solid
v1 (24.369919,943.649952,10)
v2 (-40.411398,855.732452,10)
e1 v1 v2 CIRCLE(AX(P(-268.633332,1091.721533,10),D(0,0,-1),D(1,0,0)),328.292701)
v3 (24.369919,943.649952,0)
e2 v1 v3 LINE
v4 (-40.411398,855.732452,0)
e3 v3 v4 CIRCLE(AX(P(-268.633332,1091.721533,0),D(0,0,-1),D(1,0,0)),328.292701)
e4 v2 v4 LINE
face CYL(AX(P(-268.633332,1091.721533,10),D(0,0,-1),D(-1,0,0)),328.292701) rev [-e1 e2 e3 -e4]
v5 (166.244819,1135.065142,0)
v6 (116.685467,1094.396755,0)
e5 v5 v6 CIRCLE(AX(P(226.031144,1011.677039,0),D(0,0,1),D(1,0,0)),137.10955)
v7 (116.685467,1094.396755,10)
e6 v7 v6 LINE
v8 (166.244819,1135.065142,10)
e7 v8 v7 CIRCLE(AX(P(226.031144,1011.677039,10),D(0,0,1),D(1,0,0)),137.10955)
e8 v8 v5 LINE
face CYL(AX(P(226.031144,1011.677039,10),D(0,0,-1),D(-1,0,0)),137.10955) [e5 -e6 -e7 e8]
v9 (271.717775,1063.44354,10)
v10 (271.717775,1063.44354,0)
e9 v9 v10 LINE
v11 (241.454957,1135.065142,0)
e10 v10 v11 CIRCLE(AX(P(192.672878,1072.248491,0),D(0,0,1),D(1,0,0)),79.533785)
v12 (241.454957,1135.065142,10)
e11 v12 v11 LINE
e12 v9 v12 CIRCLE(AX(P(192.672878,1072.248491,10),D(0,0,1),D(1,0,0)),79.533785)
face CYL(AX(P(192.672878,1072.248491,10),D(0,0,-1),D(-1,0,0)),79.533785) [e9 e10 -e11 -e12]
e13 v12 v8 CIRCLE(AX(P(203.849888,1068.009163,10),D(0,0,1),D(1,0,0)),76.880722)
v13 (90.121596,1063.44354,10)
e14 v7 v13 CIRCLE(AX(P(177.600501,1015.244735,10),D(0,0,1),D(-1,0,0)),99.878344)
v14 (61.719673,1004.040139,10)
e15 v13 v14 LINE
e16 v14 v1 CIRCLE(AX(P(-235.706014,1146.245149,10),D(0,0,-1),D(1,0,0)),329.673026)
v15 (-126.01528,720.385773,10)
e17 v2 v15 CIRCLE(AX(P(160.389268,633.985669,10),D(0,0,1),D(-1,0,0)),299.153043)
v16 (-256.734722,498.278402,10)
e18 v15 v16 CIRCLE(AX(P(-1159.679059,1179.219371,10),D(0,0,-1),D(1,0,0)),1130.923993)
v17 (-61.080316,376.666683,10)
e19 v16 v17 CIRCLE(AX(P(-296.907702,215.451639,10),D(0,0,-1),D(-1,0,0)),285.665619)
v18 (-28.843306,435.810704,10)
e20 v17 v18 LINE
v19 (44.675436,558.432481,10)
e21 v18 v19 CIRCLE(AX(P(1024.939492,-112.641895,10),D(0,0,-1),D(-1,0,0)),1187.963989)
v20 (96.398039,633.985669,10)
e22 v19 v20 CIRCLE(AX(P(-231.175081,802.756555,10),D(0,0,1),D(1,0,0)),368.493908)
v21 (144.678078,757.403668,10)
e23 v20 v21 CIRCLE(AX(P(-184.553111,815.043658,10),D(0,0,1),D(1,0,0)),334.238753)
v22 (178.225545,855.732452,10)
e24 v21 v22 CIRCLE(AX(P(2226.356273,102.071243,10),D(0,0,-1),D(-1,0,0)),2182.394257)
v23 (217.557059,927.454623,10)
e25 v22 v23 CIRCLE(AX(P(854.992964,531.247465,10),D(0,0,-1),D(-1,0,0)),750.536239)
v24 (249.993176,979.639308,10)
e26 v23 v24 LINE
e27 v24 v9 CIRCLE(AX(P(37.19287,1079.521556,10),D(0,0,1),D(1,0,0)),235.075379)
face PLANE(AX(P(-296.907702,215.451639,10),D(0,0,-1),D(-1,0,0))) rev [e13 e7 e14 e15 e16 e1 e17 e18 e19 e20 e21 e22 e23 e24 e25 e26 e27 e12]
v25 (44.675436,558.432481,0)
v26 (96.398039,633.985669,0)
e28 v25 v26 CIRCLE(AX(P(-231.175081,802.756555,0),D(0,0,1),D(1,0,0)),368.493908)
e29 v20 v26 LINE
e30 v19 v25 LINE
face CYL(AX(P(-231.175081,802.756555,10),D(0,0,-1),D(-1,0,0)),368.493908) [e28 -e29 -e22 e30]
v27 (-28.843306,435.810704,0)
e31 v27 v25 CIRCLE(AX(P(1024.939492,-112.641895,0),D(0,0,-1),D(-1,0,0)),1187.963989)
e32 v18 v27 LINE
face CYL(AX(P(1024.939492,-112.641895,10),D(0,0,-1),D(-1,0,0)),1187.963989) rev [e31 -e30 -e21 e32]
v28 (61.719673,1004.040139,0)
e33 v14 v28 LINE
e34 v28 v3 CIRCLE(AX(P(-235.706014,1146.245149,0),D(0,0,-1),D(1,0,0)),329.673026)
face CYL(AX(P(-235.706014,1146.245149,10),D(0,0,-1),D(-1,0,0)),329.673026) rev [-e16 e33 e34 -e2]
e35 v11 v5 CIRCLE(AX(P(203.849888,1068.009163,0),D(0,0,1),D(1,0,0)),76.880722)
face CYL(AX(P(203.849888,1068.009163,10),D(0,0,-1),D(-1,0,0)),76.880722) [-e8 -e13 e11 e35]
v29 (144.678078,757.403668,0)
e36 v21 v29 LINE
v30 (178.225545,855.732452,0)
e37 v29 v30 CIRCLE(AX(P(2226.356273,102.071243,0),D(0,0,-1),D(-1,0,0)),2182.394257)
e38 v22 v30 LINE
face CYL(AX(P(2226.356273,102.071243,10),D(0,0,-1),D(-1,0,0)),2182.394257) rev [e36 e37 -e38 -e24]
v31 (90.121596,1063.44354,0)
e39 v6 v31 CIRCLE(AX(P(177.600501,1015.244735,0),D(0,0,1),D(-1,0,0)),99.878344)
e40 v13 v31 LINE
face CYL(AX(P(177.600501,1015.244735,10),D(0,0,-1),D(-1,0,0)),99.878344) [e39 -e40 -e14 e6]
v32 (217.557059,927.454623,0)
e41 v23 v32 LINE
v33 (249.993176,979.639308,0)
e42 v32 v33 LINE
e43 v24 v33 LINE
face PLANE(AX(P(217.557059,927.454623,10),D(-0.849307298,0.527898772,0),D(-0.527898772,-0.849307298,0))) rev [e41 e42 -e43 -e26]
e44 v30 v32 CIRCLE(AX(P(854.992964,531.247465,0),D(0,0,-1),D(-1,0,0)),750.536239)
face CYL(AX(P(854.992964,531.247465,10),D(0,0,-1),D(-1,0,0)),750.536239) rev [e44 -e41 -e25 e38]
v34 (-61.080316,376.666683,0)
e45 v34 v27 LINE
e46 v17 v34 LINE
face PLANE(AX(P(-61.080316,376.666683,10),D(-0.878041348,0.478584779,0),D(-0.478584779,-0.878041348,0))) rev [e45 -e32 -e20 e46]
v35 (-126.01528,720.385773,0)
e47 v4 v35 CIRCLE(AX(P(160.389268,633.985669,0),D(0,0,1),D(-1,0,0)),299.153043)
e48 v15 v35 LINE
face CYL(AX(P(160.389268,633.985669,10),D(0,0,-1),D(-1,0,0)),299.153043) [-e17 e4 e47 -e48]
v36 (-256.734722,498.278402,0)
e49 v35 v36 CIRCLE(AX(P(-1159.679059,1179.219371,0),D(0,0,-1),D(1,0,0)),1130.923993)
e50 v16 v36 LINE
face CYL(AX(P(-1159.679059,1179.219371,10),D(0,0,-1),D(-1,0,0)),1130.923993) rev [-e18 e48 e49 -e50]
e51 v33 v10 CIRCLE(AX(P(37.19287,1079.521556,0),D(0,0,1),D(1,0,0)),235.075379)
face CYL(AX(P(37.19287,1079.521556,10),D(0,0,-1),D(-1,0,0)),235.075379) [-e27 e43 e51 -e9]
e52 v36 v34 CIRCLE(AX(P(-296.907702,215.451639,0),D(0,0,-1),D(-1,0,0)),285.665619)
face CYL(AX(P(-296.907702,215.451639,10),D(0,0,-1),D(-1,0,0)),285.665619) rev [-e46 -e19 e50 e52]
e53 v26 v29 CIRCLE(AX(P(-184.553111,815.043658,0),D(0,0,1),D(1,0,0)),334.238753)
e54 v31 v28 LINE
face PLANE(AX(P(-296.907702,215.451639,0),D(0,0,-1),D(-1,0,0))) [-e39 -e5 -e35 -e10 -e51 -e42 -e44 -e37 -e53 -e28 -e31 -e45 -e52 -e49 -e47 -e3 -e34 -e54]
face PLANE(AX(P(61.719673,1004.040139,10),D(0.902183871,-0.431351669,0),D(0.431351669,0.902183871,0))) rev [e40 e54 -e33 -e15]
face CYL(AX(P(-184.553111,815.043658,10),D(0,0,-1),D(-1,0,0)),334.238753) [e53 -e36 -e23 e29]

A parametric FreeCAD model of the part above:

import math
import FreeCAD as App
import Part
import Sketcher

doc = App.newDocument("Part")
body = doc.addObject("PartDesign::Body", "Body")

# Sketch on XY plane
sketch1 = doc.addObject("Sketcher::SketchObject", "Sketch")
body.addObject(sketch1)
sketch1.AttachmentSupport = (doc.XY_Plane, [""])
sketch1.MapMode = "FlatFace"
sketch1.addGeometry([
    Part.LineSegment(App.Vector(90.121596, 1063.44354, 0), App.Vector(61.719673, 1004.040139, 0)),  # 0
    Part.ArcOfCircle(Part.Circle(App.Vector(-235.706014, 1146.245149, 0), App.Vector(0, 0, 1), 329.673026), math.radians(-37.918048), math.radians(-25.553371)),  # 1
    Part.ArcOfCircle(Part.Circle(App.Vector(-268.633332, 1091.721533, 0), App.Vector(0, 0, 1), 328.292701), math.radians(-45.95858), math.radians(-26.810124)),  # 2
    Part.ArcOfCircle(Part.Circle(App.Vector(160.389267, 633.985669, 0), App.Vector(0, 0, 1), 299.153043), math.radians(132.162111), math.radians(163.212931)),  # 3
    Part.ArcOfCircle(Part.Circle(App.Vector(-1159.679059, 1179.219371, 0), App.Vector(0, 0, 1), 1130.923993), math.radians(-37.021186), math.radians(-23.935983)),  # 4
    Part.ArcOfCircle(Part.Circle(App.Vector(-296.907702, 215.451639, 0), App.Vector(0, 0, 1), 285.665619), math.radians(34.357082), math.radians(81.915733)),  # 5
    Part.LineSegment(App.Vector(-61.080316, 376.666683, 0), App.Vector(-28.843306, 435.810704, 0)),  # 6
    Part.ArcOfCircle(Part.Circle(App.Vector(1024.939492, -112.641895, 0), App.Vector(0, 0, 1), 1187.963989), math.radians(145.605031), math.radians(152.504792)),  # 7
    Part.ArcOfCircle(Part.Circle(App.Vector(-231.175081, 802.756555, 0), App.Vector(0, 0, 1), 368.493908), math.radians(-41.531693), math.radians(-27.258245)),  # 8
    Part.ArcOfCircle(Part.Circle(App.Vector(-184.553111, 815.043658, 0), App.Vector(0, 0, 1), 334.238753), math.radians(-32.799615), math.radians(-9.930388)),  # 9
    Part.ArcOfCircle(Part.Circle(App.Vector(2226.356273, 102.071243, 0), App.Vector(0, 0, 1), 2182.394258), math.radians(159.797639), math.radians(162.525494)),  # 10
    Part.ArcOfCircle(Part.Circle(App.Vector(854.992964, 531.247465, 0), App.Vector(0, 0, 1), 750.536239), math.radians(148.136407), math.radians(154.384002)),  # 11
    Part.LineSegment(App.Vector(217.557059, 927.454623, 0), App.Vector(249.993176, 979.639308, 0)),  # 12
    Part.ArcOfCircle(Part.Circle(App.Vector(37.19287, 1079.521556, 0), App.Vector(0, 0, 1), 235.075379), math.radians(-25.143989), math.radians(-3.921815)),  # 13
    Part.ArcOfCircle(Part.Circle(App.Vector(192.672878, 1072.248491, 0), App.Vector(0, 0, 1), 79.533785), math.radians(-6.356075), math.radians(52.167844)),  # 14
    Part.ArcOfCircle(Part.Circle(App.Vector(203.849888, 1068.009163, 0), App.Vector(0, 0, 1), 76.880722), math.radians(60.716242), math.radians(119.283758)),  # 15
    Part.ArcOfCircle(Part.Circle(App.Vector(226.031144, 1011.677039, 0), App.Vector(0, 0, 1), 137.10955), math.radians(115.851989), math.radians(142.892591)),  # 16
    Part.ArcOfCircle(Part.Circle(App.Vector(177.600501, 1015.244735, 0), App.Vector(0, 0, 1), 99.878344), math.radians(127.581717), math.radians(151.146277)),  # 17
], False)
sketch1.addConstraint([
    Sketcher.Constraint("Tangent", 0, 2, 1, 2),
    Sketcher.Constraint("Coincident", 1, 1, 2, 2),
    Sketcher.Constraint("Coincident", 2, 1, 3, 1),
    Sketcher.Constraint("Coincident", 3, 2, 4, 2),
    Sketcher.Constraint("Coincident", 4, 1, 5, 2),
    Sketcher.Constraint("Coincident", 5, 1, 6, 1),
    Sketcher.Constraint("Coincident", 6, 2, 7, 2),
    Sketcher.Constraint("Coincident", 7, 1, 8, 1),
    Sketcher.Constraint("Coincident", 8, 2, 9, 1),
    Sketcher.Constraint("Coincident", 9, 2, 10, 2),
    Sketcher.Constraint("Coincident", 10, 1, 11, 2),
    Sketcher.Constraint("Tangent", 11, 1, 12, 1),
    Sketcher.Constraint("Coincident", 12, 2, 13, 1),
    Sketcher.Constraint("Coincident", 13, 2, 14, 1),
    Sketcher.Constraint("Coincident", 14, 2, 15, 1),
    Sketcher.Constraint("Coincident", 15, 2, 16, 1),
    Sketcher.Constraint("Coincident", 16, 2, 17, 1),
    Sketcher.Constraint("Coincident", 17, 2, 0, 1),
    Sketcher.Constraint("Horizontal", 3, 3, 8, 2),
    Sketcher.Constraint("Horizontal", 2, 1, 10, 1),
    Sketcher.Constraint("Horizontal", 14, 2, 15, 2),
    Sketcher.Constraint("Horizontal", 13, 2, 17, 2),
    Sketcher.Constraint("Radius", 2, 328.292701),
    Sketcher.Constraint("Radius", 5, 285.665619),
    Sketcher.Constraint("Radius", 7, 1187.963989),
    Sketcher.Constraint("Radius", 8, 368.493908),
    Sketcher.Constraint("Radius", 11, 750.536239),
    Sketcher.Constraint("Radius", 13, 235.075379),
    Sketcher.Constraint("Radius", 16, 137.10955),
    Sketcher.Constraint("Radius", 1, 329.673026),
    Sketcher.Constraint("Radius", 3, 299.153043),
    Sketcher.Constraint("Radius", 4, 1130.923993),
    Sketcher.Constraint("Radius", 9, 334.238753),
    Sketcher.Constraint("Radius", 10, 2182.394258),
    Sketcher.Constraint("Radius", 14, 79.533785),
    Sketcher.Constraint("Radius", 15, 76.880722),
    Sketcher.Constraint("Radius", 17, 99.878344),
    Sketcher.Constraint("DistanceY", 8, 3, 13, 3, 276.765001),
    Sketcher.Constraint("DistanceX", 9, 3, 15, 3, 388.402999),
    Sketcher.Constraint("DistanceY", 3, 3, 9, 2, 123.417999),
    Sketcher.Constraint("DistanceX", 5, 3, -1, 1, 296.907702),
    Sketcher.Constraint("DistanceX", -1, 1, 17, 3, 177.600501),
    Sketcher.Constraint("DistanceX", 2, 3, 3, 3, 429.022599),
    Sketcher.Constraint("DistanceX", 2, 3, 13, 3, 305.826201),
    Sketcher.Constraint("DistanceY", 0, 2, 16, 3, 7.6369),
    Sketcher.Constraint("DistanceY", 2, 1, 1, 1, 87.917501),
    Sketcher.Constraint("DistanceX", 8, 3, 3, 2, 105.1598),
    Sketcher.Constraint("DistanceX", 3, 2, 1, 1, 150.385199),
    Sketcher.Constraint("DistanceY", 5, 1, 7, 1, 181.765799),
    Sketcher.Constraint("DistanceX", 14, 3, 12, 2, 57.320298),
    Sketcher.Constraint("DistanceY", 16, 3, 13, 2, 51.766501),
    Sketcher.Constraint("DistanceX", 12, 2, 13, 2, 21.724599),
    Sketcher.Constraint("DistanceY", 13, 2, 14, 2, 71.621602),
    Sketcher.Constraint("DistanceY", 13, 3, 16, 2, 14.875199),
    Sketcher.Constraint("Distance", 6, 67.359039),
    Sketcher.Constraint("Distance", 12, 61.44382),
    Sketcher.Constraint("DistanceY", -1, 1, 1, 3, 1146.245149),
    Sketcher.Constraint("DistanceX", 2, 3, -1, 1, 268.633332),
    Sketcher.Constraint("DistanceY", -1, 1, 3, 3, 633.985669),
    Sketcher.Constraint("DistanceX", 4, 3, -1, 1, 1159.679059),
    Sketcher.Constraint("DistanceY", -1, 1, 4, 3, 1179.219371),
    Sketcher.Constraint("DistanceY", -1, 1, 5, 3, 215.451639),
    Sketcher.Constraint("DistanceX", 9, 3, -1, 1, 184.553111),
    Sketcher.Constraint("DistanceY", -1, 1, 9, 3, 815.043658),
    Sketcher.Constraint("DistanceY", 7, 3, 2, 3, 1204.363428),
    Sketcher.Constraint("DistanceX", 4, 3, 7, 3, 2184.618551),
    Sketcher.Constraint("DistanceX", 7, 3, 10, 3, 1201.416781),
])
pad1 = doc.addObject("PartDesign::Pad", "Pad")
body.addObject(pad1)
pad1.Profile = sketch1
pad1.Length = 10

doc.recompute()
